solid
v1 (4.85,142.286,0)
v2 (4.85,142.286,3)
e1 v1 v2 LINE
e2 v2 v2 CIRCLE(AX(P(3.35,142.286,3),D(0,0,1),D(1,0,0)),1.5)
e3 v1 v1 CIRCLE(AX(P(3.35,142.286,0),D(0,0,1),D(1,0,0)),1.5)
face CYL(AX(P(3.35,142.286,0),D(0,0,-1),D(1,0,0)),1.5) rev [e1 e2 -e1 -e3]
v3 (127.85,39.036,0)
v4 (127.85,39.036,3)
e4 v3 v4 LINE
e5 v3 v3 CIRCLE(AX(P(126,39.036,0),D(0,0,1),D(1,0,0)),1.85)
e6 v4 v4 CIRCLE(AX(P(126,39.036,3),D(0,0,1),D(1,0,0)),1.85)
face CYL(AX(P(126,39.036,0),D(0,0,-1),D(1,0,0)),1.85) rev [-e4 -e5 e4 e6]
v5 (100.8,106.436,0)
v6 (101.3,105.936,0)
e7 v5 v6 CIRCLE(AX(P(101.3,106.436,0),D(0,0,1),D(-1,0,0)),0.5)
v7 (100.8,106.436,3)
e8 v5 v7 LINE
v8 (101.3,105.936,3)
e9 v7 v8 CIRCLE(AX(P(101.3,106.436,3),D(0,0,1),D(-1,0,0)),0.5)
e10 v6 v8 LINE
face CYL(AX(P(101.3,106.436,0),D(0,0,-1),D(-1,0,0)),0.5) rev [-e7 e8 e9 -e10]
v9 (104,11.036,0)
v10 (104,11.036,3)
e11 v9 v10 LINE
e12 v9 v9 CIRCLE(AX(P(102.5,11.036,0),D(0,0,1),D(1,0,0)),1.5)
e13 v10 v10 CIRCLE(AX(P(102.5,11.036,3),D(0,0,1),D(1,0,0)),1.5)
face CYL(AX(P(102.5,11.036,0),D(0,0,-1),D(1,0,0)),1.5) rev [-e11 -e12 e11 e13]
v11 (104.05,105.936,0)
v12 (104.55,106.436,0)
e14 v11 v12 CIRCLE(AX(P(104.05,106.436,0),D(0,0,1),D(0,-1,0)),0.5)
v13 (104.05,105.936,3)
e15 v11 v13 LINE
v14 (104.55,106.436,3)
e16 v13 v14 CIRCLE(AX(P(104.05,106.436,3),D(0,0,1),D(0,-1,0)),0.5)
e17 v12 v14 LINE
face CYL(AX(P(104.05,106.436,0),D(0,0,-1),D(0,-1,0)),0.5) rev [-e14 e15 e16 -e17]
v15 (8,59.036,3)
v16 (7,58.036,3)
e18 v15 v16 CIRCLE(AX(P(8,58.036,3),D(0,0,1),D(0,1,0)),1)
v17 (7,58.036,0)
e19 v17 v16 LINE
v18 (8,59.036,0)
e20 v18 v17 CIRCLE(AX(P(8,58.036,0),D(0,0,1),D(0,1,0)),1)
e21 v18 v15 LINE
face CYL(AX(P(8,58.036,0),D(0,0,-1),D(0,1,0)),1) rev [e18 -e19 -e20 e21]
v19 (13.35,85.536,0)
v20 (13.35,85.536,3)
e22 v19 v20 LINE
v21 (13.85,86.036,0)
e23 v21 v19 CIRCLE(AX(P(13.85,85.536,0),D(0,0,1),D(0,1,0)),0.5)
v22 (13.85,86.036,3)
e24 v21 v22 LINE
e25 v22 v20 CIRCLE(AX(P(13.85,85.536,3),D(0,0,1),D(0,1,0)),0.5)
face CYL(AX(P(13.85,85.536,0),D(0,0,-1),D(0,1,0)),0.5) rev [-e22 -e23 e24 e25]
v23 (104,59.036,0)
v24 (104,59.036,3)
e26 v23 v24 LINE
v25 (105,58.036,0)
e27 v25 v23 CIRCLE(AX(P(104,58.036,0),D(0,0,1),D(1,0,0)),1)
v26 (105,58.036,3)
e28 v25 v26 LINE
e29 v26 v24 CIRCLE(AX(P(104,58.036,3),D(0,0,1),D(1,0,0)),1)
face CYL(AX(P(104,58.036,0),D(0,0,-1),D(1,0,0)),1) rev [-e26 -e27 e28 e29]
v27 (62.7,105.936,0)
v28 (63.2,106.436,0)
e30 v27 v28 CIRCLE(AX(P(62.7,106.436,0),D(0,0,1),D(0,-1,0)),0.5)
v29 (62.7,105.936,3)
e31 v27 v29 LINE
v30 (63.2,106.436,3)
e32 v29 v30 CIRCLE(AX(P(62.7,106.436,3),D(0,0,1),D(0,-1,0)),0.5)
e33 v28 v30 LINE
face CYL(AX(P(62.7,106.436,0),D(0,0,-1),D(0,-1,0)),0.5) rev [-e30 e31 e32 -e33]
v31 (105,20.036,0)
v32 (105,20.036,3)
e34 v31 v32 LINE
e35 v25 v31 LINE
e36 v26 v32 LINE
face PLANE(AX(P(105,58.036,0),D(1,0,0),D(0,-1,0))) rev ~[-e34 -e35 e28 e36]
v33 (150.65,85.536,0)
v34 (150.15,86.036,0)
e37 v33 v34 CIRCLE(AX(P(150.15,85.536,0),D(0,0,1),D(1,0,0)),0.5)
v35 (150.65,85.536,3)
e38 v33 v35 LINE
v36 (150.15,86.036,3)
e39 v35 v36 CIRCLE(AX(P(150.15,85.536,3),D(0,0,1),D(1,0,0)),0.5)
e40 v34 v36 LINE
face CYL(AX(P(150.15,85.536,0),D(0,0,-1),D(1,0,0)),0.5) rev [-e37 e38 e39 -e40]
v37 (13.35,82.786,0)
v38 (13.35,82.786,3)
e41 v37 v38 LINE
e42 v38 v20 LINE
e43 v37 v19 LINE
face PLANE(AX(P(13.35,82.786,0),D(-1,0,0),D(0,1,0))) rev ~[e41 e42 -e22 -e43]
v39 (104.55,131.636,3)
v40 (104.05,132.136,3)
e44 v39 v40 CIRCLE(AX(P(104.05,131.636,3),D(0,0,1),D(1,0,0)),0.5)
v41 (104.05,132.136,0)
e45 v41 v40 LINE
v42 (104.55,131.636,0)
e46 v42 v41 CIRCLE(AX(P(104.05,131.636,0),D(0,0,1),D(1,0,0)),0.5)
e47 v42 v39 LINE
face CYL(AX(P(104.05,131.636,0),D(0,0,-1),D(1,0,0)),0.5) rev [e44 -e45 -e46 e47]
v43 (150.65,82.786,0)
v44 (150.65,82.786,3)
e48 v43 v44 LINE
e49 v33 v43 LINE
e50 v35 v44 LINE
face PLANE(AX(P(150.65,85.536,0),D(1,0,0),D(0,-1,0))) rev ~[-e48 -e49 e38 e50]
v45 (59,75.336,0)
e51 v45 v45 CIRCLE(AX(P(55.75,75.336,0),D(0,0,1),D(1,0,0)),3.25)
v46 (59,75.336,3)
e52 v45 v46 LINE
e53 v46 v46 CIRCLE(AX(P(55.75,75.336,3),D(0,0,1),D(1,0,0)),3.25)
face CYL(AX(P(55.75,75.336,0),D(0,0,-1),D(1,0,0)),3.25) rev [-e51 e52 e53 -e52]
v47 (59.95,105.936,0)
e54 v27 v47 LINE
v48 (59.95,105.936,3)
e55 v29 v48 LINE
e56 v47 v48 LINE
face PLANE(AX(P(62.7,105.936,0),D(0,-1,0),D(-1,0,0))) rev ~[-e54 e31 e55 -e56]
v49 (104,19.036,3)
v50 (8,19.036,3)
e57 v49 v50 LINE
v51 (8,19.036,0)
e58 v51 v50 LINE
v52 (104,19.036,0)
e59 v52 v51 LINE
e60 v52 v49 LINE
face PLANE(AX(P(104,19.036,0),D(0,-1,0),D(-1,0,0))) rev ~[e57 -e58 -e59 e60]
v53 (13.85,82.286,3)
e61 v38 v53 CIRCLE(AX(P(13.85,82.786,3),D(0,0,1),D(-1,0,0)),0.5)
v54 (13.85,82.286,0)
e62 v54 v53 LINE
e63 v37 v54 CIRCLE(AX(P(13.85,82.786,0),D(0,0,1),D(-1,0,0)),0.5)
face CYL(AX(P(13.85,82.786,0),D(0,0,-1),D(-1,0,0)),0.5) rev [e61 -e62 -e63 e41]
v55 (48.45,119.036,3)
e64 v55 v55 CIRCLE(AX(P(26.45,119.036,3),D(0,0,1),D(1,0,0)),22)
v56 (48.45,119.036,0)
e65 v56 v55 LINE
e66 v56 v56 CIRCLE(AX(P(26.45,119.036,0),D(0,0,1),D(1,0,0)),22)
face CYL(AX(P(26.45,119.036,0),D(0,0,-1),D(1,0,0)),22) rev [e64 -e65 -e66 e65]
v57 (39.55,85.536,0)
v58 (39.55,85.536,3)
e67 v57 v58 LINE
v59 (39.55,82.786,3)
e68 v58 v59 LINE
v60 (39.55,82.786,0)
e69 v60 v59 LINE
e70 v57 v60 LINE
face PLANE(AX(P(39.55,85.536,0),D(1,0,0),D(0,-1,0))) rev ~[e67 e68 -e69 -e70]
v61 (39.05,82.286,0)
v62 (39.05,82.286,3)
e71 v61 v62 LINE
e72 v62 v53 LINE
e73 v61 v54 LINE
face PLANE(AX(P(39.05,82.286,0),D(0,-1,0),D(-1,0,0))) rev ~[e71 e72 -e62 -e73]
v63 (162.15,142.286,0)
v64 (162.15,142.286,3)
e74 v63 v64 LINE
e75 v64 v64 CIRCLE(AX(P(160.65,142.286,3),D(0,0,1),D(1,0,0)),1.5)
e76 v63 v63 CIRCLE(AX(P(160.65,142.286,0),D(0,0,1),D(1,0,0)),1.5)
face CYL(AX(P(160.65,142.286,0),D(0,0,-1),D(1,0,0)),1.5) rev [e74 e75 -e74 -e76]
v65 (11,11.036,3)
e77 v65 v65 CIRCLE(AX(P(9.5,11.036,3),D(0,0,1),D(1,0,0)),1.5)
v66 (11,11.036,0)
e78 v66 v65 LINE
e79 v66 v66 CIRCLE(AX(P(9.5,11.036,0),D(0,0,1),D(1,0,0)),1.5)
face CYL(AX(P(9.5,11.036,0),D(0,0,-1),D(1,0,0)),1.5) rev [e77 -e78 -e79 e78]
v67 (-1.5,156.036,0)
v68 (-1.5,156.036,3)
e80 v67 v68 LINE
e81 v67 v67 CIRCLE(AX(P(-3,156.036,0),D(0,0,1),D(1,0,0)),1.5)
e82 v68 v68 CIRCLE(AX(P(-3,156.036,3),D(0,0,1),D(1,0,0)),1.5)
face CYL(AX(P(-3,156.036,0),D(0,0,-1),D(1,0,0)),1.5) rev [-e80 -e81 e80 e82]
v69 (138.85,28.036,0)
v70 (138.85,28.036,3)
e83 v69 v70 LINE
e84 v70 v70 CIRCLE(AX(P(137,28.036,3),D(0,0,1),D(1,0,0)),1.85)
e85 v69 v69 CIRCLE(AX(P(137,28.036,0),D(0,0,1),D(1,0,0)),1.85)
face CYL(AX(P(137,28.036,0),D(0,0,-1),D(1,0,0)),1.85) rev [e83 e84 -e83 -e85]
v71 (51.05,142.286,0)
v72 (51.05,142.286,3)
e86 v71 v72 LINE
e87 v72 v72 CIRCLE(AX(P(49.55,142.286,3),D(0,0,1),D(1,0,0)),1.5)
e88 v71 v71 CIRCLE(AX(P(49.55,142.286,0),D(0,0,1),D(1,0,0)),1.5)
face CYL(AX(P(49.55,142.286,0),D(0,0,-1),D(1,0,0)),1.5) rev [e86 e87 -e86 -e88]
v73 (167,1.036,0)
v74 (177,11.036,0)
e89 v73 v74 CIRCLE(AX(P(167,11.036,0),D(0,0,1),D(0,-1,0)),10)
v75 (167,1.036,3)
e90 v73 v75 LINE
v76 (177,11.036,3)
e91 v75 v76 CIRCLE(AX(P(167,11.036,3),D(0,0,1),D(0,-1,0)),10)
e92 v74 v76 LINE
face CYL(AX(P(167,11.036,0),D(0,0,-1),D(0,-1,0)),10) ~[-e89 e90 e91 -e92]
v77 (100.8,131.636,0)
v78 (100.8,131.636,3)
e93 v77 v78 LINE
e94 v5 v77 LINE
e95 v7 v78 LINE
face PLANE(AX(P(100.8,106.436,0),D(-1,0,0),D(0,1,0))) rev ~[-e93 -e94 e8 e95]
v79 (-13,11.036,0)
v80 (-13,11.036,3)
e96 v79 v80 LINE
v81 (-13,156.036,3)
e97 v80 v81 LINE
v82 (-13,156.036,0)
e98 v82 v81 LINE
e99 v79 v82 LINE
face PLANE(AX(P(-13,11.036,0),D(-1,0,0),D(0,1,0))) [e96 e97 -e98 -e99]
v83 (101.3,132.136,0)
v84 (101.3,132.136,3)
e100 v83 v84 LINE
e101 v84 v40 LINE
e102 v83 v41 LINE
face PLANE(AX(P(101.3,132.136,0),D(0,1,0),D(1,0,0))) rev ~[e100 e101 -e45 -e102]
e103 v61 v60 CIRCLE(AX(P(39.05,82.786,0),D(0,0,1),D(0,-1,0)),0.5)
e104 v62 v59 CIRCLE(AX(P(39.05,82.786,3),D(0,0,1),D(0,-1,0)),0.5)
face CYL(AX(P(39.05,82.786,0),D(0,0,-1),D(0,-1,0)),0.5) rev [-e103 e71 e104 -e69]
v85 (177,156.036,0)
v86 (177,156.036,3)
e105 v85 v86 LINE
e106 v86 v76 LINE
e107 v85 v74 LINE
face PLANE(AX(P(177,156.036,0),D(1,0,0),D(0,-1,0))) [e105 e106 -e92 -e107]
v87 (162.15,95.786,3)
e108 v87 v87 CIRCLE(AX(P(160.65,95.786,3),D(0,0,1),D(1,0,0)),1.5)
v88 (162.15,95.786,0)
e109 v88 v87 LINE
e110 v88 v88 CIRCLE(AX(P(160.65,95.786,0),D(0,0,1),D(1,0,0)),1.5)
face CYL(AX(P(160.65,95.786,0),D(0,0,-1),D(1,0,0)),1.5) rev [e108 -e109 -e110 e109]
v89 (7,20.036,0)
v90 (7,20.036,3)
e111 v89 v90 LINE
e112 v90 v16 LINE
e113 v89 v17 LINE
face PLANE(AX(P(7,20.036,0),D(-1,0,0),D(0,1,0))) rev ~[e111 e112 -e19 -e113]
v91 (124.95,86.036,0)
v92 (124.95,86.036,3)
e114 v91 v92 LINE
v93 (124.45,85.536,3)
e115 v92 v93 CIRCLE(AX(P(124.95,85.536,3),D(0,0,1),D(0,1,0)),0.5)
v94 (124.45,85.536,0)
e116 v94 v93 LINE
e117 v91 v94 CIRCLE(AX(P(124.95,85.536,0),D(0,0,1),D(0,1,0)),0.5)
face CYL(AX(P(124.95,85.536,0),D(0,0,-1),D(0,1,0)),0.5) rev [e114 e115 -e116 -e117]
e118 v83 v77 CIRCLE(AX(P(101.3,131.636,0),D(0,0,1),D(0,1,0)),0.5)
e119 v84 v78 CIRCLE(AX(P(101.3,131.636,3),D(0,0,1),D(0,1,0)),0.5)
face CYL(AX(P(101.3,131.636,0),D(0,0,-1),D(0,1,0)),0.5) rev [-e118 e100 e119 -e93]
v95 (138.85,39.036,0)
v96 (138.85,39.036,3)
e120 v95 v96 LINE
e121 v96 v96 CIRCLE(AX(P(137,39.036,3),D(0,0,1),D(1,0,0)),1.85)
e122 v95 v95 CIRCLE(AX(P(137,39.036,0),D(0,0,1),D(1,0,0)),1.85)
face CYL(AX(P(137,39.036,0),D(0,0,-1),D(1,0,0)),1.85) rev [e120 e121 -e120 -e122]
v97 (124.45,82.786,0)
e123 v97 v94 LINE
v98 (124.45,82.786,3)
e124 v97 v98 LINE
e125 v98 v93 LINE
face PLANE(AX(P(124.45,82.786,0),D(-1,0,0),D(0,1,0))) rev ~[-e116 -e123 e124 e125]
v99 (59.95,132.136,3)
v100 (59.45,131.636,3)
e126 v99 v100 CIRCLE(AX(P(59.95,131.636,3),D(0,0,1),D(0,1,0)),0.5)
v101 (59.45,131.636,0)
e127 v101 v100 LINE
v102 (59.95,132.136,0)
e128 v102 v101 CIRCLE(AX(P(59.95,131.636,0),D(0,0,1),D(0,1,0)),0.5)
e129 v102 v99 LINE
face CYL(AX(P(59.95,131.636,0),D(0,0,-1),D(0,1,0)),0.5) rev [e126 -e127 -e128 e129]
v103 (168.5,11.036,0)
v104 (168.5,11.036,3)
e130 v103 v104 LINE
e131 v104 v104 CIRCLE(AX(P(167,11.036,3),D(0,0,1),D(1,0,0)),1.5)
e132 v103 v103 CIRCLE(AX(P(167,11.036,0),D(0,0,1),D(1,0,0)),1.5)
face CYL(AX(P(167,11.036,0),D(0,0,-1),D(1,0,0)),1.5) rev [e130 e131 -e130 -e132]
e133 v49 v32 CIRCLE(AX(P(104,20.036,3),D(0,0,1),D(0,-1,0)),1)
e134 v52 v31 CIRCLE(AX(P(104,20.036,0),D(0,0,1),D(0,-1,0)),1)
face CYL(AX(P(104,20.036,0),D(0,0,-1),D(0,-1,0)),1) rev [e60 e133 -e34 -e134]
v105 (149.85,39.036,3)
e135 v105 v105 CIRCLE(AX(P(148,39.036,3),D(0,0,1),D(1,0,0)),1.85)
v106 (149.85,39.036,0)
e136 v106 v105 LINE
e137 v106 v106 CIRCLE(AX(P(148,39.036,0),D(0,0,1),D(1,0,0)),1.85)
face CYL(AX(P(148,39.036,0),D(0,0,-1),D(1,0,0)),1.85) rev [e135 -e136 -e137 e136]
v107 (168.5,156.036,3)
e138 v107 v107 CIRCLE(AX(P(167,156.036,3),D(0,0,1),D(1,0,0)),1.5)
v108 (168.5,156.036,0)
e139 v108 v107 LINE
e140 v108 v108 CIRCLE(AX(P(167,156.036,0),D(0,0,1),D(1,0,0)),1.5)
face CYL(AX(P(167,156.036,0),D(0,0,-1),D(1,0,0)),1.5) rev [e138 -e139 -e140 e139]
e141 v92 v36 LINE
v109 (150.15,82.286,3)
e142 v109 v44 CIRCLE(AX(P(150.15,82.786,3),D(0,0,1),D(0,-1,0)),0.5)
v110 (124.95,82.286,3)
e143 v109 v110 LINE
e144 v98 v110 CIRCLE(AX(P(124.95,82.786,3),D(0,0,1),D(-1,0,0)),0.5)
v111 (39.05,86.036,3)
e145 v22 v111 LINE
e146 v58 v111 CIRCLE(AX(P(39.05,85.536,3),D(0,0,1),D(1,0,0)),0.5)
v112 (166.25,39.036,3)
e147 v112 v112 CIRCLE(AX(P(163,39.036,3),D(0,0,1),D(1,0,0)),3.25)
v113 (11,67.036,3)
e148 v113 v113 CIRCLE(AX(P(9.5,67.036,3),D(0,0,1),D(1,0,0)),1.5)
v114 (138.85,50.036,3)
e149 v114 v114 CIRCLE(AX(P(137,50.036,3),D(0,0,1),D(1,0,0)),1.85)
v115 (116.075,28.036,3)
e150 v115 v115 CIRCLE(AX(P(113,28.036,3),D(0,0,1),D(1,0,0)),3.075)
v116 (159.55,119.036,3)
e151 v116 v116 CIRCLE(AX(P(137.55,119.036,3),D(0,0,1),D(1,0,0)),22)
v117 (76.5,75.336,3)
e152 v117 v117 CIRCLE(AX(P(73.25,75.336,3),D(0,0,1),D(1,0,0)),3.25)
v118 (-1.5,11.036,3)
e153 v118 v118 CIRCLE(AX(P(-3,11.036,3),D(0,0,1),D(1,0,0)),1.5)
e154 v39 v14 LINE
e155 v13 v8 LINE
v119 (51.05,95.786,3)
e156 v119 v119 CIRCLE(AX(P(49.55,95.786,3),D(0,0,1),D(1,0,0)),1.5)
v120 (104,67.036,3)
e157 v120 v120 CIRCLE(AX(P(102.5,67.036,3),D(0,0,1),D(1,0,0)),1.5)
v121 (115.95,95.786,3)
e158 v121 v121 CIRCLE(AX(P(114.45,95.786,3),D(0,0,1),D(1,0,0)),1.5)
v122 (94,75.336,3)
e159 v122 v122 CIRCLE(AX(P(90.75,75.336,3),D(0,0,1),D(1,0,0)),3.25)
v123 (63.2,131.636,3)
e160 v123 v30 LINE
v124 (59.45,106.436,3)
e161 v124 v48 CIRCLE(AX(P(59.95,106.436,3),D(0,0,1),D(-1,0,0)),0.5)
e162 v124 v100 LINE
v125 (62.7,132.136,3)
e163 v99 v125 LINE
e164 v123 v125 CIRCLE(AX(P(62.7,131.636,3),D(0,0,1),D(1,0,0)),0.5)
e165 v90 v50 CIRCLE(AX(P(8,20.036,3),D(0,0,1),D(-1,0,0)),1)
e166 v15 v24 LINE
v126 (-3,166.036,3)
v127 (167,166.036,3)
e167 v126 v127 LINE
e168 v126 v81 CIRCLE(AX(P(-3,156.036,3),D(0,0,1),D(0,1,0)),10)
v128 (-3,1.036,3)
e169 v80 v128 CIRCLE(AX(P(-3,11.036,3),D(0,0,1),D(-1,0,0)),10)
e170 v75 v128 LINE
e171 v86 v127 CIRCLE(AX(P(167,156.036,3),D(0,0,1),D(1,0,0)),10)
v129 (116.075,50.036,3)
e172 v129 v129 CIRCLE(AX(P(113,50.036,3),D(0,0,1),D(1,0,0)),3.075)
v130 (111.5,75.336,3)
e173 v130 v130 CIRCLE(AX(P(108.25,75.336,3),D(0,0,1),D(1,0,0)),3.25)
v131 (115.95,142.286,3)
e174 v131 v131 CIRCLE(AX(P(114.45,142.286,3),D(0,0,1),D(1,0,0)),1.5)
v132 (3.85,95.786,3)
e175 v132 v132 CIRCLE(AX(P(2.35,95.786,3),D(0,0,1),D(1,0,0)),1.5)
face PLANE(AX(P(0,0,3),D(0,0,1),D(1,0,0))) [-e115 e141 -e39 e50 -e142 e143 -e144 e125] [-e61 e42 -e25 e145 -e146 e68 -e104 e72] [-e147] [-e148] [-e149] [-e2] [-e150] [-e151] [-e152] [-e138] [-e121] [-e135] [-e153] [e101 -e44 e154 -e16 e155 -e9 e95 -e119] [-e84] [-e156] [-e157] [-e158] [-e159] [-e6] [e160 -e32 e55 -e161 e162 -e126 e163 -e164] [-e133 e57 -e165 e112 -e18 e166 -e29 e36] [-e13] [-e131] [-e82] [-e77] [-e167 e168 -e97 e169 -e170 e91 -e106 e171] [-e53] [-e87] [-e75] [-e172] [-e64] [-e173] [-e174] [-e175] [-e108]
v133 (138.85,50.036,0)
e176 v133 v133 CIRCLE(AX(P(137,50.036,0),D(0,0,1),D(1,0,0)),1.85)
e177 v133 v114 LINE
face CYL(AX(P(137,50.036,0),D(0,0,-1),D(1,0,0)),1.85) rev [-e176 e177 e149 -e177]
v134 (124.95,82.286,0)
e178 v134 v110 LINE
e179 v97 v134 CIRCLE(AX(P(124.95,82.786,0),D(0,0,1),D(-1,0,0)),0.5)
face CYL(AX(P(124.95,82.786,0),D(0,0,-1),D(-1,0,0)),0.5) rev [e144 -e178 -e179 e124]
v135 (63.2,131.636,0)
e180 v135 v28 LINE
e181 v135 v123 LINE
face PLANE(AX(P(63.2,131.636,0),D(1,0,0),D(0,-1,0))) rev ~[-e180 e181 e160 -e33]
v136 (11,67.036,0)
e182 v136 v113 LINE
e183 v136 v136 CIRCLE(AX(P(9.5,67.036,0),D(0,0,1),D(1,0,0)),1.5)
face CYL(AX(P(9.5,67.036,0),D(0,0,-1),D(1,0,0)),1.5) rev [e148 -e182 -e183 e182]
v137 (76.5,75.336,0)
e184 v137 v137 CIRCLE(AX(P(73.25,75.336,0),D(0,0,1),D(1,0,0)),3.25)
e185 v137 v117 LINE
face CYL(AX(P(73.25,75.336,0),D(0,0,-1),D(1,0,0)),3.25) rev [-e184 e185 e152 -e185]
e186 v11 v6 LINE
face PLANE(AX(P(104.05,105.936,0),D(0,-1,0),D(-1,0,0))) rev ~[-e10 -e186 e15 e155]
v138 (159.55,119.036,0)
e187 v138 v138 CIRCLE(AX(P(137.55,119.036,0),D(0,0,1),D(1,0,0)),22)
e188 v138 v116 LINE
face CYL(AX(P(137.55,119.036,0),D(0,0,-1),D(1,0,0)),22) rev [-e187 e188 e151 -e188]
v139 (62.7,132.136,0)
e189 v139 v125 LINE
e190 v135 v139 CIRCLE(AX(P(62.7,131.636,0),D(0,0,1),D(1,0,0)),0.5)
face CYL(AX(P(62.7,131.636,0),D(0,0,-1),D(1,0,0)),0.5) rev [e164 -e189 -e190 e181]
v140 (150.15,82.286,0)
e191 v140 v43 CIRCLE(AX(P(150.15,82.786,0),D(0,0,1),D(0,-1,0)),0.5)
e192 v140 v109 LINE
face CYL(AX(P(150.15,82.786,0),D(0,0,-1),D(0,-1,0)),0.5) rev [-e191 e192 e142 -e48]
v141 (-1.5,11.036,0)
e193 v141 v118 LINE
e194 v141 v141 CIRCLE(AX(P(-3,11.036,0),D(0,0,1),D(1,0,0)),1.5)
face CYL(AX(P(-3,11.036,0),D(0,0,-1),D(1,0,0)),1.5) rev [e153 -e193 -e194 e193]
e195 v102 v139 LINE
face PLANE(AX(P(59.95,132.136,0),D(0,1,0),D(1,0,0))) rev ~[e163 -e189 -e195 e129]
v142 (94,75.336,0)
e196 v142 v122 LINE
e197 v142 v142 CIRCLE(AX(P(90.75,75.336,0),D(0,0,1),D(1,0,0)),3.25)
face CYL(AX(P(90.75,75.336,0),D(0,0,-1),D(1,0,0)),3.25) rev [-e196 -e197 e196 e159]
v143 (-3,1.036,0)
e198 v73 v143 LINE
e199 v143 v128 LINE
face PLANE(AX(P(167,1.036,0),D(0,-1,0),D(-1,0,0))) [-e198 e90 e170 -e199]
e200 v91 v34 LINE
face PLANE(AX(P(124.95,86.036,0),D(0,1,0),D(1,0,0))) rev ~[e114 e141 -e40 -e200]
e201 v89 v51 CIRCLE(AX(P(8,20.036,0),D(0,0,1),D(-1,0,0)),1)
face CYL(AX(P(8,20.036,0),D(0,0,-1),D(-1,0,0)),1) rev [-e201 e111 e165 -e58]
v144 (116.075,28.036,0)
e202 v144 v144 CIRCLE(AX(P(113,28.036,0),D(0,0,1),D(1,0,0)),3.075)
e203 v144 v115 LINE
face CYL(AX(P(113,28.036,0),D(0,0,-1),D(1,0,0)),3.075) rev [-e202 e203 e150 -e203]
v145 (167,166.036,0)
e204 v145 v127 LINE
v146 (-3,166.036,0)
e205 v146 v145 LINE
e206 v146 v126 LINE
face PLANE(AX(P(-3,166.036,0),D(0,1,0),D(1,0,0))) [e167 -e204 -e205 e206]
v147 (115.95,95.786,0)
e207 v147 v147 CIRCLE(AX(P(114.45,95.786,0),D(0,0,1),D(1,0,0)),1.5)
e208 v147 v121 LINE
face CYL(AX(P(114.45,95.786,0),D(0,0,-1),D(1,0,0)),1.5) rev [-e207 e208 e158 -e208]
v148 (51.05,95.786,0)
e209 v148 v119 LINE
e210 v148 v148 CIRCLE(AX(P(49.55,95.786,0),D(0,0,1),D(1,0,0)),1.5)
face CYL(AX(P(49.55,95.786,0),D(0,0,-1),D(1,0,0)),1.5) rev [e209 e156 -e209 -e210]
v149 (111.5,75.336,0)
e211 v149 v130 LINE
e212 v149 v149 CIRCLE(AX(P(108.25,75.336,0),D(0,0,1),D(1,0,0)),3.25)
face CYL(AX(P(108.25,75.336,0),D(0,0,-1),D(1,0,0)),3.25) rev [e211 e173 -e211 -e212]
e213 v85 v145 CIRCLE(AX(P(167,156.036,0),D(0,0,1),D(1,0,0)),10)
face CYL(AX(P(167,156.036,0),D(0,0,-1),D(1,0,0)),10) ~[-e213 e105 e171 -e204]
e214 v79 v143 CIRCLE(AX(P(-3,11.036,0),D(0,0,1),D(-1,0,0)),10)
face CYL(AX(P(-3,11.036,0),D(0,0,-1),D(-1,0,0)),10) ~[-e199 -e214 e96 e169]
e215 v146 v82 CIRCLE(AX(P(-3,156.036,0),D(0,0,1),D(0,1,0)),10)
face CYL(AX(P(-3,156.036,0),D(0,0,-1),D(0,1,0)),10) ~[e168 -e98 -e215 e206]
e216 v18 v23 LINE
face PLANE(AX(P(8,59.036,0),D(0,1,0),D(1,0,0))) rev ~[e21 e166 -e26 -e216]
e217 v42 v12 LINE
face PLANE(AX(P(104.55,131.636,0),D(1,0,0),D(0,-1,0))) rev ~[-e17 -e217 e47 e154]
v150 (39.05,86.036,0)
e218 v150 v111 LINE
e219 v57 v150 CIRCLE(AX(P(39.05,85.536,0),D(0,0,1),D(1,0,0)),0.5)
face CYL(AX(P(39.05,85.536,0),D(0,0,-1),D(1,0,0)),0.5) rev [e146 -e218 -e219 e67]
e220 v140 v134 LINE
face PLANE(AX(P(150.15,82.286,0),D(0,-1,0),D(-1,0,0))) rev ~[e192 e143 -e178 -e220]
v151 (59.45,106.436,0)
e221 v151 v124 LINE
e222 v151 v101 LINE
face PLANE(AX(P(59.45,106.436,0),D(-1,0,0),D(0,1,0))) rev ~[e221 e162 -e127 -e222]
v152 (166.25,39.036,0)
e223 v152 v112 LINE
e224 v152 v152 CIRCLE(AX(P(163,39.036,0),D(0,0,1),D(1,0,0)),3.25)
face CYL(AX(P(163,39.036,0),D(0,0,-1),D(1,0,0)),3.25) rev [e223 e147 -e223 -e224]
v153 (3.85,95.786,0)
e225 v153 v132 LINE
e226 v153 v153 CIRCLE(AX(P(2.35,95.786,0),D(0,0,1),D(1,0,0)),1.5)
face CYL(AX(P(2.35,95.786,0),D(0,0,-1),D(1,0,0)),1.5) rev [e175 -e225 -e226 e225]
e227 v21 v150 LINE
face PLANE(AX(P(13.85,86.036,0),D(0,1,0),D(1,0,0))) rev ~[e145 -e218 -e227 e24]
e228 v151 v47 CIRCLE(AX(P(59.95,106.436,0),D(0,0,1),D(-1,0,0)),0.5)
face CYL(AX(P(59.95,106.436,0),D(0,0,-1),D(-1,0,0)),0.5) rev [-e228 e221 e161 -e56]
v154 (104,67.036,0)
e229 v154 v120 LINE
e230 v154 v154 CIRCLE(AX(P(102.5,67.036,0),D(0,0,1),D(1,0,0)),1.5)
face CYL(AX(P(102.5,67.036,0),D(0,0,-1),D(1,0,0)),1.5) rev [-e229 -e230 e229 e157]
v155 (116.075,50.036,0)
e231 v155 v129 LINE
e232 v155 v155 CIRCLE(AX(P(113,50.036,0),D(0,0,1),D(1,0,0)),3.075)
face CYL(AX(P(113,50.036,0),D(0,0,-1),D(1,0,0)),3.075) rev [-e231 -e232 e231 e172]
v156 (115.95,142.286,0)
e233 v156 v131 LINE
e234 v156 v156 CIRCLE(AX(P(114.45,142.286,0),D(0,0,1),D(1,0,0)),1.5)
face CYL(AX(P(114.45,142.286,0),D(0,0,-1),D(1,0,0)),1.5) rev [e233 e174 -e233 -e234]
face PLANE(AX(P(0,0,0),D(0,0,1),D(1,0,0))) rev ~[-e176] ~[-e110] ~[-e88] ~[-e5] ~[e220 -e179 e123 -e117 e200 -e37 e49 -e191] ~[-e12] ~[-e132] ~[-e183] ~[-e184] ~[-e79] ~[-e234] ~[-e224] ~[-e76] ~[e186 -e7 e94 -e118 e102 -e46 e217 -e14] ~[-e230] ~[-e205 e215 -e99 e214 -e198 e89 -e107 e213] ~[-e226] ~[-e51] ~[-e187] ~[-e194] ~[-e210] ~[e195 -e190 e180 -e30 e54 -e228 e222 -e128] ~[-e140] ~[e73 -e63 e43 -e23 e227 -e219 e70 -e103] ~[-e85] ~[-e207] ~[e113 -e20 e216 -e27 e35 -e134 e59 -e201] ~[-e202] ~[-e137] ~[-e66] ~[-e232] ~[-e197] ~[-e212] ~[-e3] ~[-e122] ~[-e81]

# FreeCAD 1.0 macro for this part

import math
import FreeCAD as App
import Part
import Sketcher
Q = App.Units.Quantity

doc = App.newDocument("Part")
params = doc.addObject("Spreadsheet::Sheet", "Params")
for row, (alias, value) in enumerate([
    ("sketch1_diameter", "3 mm"),
    ("sketch1_diameter2", "44 mm"),
    ("sketch1_radius", "10 mm"),
    ("sketch1_radius2", "1 mm"),
    ("sketch1_diameter3", "6.5 mm"),
    ("pad1_length", "3 mm"),
    ("sketch2_diameter", "3 mm"),
    ("pocket1_length", "3 mm"),
], start=1):
    params.set(f"A{row}", alias)
    params.set(f"B{row}", "=" + value)
    params.setAlias(f"B{row}", alias)

body = doc.addObject("PartDesign::Body", "Body")

sketch1 = body.newObject("Sketcher::SketchObject", "Sketch")
sketch1.AttachmentSupport = (doc.getObject("XY_Plane"), [""])
sketch1.MapMode = "FlatFace"
sketch1.addGeometry([
    Part.LineSegment(App.Vector(167, 166.036, 0), App.Vector(-3, 166.036, 0)),
    Part.ArcOfCircle(Part.Circle(App.Vector(-3, 156.036, 0), App.Vector(0, 0, 1), 10), math.radians(90), math.radians(180)),
    Part.LineSegment(App.Vector(-13, 156.036, 0), App.Vector(-13, 11.036, 0)),
    Part.ArcOfCircle(Part.Circle(App.Vector(-3, 11.036, 0), App.Vector(0, 0, 1), 10), math.radians(180), math.radians(270)),
    Part.LineSegment(App.Vector(-3, 1.036, 0), App.Vector(167, 1.036, 0)),
    Part.ArcOfCircle(Part.Circle(App.Vector(167, 11.036, 0), App.Vector(0, 0, 1), 10), math.radians(-90), math.radians(0)),
    Part.LineSegment(App.Vector(177, 11.036, 0), App.Vector(177, 156.036, 0)),
    Part.ArcOfCircle(Part.Circle(App.Vector(167, 156.036, 0), App.Vector(0, 0, 1), 10), math.radians(0), math.radians(90)),
    Part.Circle(App.Vector(-3, 11.036, 0), App.Vector(0, 0, 1), 1.5),
    Part.ArcOfCircle(Part.Circle(App.Vector(8, 58.036, 0), App.Vector(0, 0, 1), 1), math.radians(90), math.radians(180)),
    Part.LineSegment(App.Vector(8, 59.036, 0), App.Vector(104, 59.036, 0)),
    Part.ArcOfCircle(Part.Circle(App.Vector(104, 58.036, 0), App.Vector(0, 0, 1), 1), math.radians(0), math.radians(90)),
    Part.LineSegment(App.Vector(105, 58.036, 0), App.Vector(105, 20.036, 0)),
    Part.ArcOfCircle(Part.Circle(App.Vector(104, 20.036, 0), App.Vector(0, 0, 1), 1), math.radians(-90), math.radians(0)),
    Part.LineSegment(App.Vector(104, 19.036, 0), App.Vector(8, 19.036, 0)),
    Part.ArcOfCircle(Part.Circle(App.Vector(8, 20.036, 0), App.Vector(0, 0, 1), 1), math.radians(180), math.radians(270)),
    Part.LineSegment(App.Vector(7, 20.036, 0), App.Vector(7, 58.036, 0)),
    Part.Circle(App.Vector(55.75, 75.336, 0), App.Vector(0, 0, 1), 3.25),
    Part.Circle(App.Vector(73.25, 75.336, 0), App.Vector(0, 0, 1), 3.25),
    Part.Circle(App.Vector(113, 28.036, 0), App.Vector(0, 0, 1), 3.075),
    Part.Circle(App.Vector(126, 39.036, 0), App.Vector(0, 0, 1), 1.85),
    Part.Circle(App.Vector(167, 11.036, 0), App.Vector(0, 0, 1), 1.5),
    Part.Circle(App.Vector(137, 28.036, 0), App.Vector(0, 0, 1), 1.85),
    Part.Circle(App.Vector(137, 39.036, 0), App.Vector(0, 0, 1), 1.85),
    Part.Circle(App.Vector(148, 39.036, 0), App.Vector(0, 0, 1), 1.85),
    Part.Circle(App.Vector(163, 39.036, 0), App.Vector(0, 0, 1), 3.25),
    Part.Circle(App.Vector(113, 50.036, 0), App.Vector(0, 0, 1), 3.075),
    Part.Circle(App.Vector(90.75, 75.336, 0), App.Vector(0, 0, 1), 3.25),
    Part.Circle(App.Vector(108.25, 75.336, 0), App.Vector(0, 0, 1), 3.25),
    Part.Circle(App.Vector(137, 50.036, 0), App.Vector(0, 0, 1), 1.85),
    Part.Circle(App.Vector(2.35, 95.786, 0), App.Vector(0, 0, 1), 1.5),
    Part.ArcOfCircle(Part.Circle(App.Vector(13.85, 85.536, 0), App.Vector(0, 0, 1), 0.5), math.radians(90), math.radians(180)),
    Part.LineSegment(App.Vector(13.85, 86.036, 0), App.Vector(39.05, 86.036, 0)),
    Part.ArcOfCircle(Part.Circle(App.Vector(39.05, 85.536, 0), App.Vector(0, 0, 1), 0.5), math.radians(0), math.radians(90)),
    Part.LineSegment(App.Vector(39.55, 85.536, 0), App.Vector(39.55, 82.786, 0)),
    Part.ArcOfCircle(Part.Circle(App.Vector(39.05, 82.786, 0), App.Vector(0, 0, 1), 0.5), math.radians(-90), math.radians(0)),
    Part.LineSegment(App.Vector(39.05, 82.286, 0), App.Vector(13.85, 82.286, 0)),
    Part.ArcOfCircle(Part.Circle(App.Vector(13.85, 82.786, 0), App.Vector(0, 0, 1), 0.5), math.radians(180), math.radians(270)),
    Part.LineSegment(App.Vector(13.35, 82.786, 0), App.Vector(13.35, 85.536, 0)),
    Part.Circle(App.Vector(26.45, 119.036, 0), App.Vector(0, 0, 1), 22),
    Part.Circle(App.Vector(49.55, 95.786, 0), App.Vector(0, 0, 1), 1.5),
    Part.ArcOfCircle(Part.Circle(App.Vector(59.95, 131.636, 0), App.Vector(0, 0, 1), 0.5), math.radians(90), math.radians(180)),
    Part.LineSegment(App.Vector(59.95, 132.136, 0), App.Vector(62.7, 132.136, 0)),
    Part.ArcOfCircle(Part.Circle(App.Vector(62.7, 131.636, 0), App.Vector(0, 0, 1), 0.5), math.radians(0), math.radians(90)),
    Part.LineSegment(App.Vector(63.2, 131.636, 0), App.Vector(63.2, 106.436, 0)),
    Part.ArcOfCircle(Part.Circle(App.Vector(62.7, 106.436, 0), App.Vector(0, 0, 1), 0.5), math.radians(-90), math.radians(0)),
    Part.LineSegment(App.Vector(62.7, 105.936, 0), App.Vector(59.95, 105.936, 0)),
    Part.ArcOfCircle(Part.Circle(App.Vector(59.95, 106.436, 0), App.Vector(0, 0, 1), 0.5), math.radians(180), math.radians(270)),
    Part.LineSegment(App.Vector(59.45, 106.436, 0), App.Vector(59.45, 131.636, 0)),
    Part.Circle(App.Vector(3.35, 142.286, 0), App.Vector(0, 0, 1), 1.5),
    Part.Circle(App.Vector(-3, 156.036, 0), App.Vector(0, 0, 1), 1.5),
    Part.Circle(App.Vector(49.55, 142.286, 0), App.Vector(0, 0, 1), 1.5),
    Part.Circle(App.Vector(114.45, 95.786, 0), App.Vector(0, 0, 1), 1.5),
    Part.ArcOfCircle(Part.Circle(App.Vector(101.3, 131.636, 0), App.Vector(0, 0, 1), 0.5), math.radians(90), math.radians(180)),
    Part.LineSegment(App.Vector(101.3, 132.136, 0), App.Vector(104.05, 132.136, 0)),
    Part.ArcOfCircle(Part.Circle(App.Vector(104.05, 131.636, 0), App.Vector(0, 0, 1), 0.5), math.radians(0), math.radians(90)),
    Part.LineSegment(App.Vector(104.55, 131.636, 0), App.Vector(104.55, 106.436, 0)),
    Part.ArcOfCircle(Part.Circle(App.Vector(104.05, 106.436, 0), App.Vector(0, 0, 1), 0.5), math.radians(-90), math.radians(0)),
    Part.LineSegment(App.Vector(104.05, 105.936, 0), App.Vector(101.3, 105.936, 0)),
    Part.ArcOfCircle(Part.Circle(App.Vector(101.3, 106.436, 0), App.Vector(0, 0, 1), 0.5), math.radians(180), math.radians(270)),
    Part.LineSegment(App.Vector(100.8, 106.436, 0), App.Vector(100.8, 131.636, 0)),
    Part.ArcOfCircle(Part.Circle(App.Vector(124.95, 85.536, 0), App.Vector(0, 0, 1), 0.5), math.radians(90), math.radians(180)),
    Part.LineSegment(App.Vector(124.95, 86.036, 0), App.Vector(150.15, 86.036, 0)),
    Part.ArcOfCircle(Part.Circle(App.Vector(150.15, 85.536, 0), App.Vector(0, 0, 1), 0.5), math.radians(0), math.radians(90)),
    Part.LineSegment(App.Vector(150.65, 85.536, 0), App.Vector(150.65, 82.786, 0)),
    Part.ArcOfCircle(Part.Circle(App.Vector(150.15, 82.786, 0), App.Vector(0, 0, 1), 0.5), math.radians(-90), math.radians(0)),
    Part.LineSegment(App.Vector(150.15, 82.286, 0), App.Vector(124.95, 82.286, 0)),
    Part.ArcOfCircle(Part.Circle(App.Vector(124.95, 82.786, 0), App.Vector(0, 0, 1), 0.5), math.radians(180), math.radians(270)),
    Part.LineSegment(App.Vector(124.45, 82.786, 0), App.Vector(124.45, 85.536, 0)),
    Part.Circle(App.Vector(160.65, 95.786, 0), App.Vector(0, 0, 1), 1.5),
    Part.Circle(App.Vector(137.55, 119.036, 0), App.Vector(0, 0, 1), 22),
    Part.Circle(App.Vector(114.45, 142.286, 0), App.Vector(0, 0, 1), 1.5),
    Part.Circle(App.Vector(160.65, 142.286, 0), App.Vector(0, 0, 1), 1.5),
    Part.Circle(App.Vector(167, 156.036, 0), App.Vector(0, 0, 1), 1.5),
], False)
sketch1.addConstraint([
    Sketcher.Constraint("Tangent", 0, 2, 1, 1),
    Sketcher.Constraint("Tangent", 1, 2, 2, 1),
    Sketcher.Constraint("Tangent", 2, 2, 3, 1),
    Sketcher.Constraint("Tangent", 3, 2, 4, 1),
    Sketcher.Constraint("Tangent", 4, 2, 5, 1),
    Sketcher.Constraint("Tangent", 5, 2, 6, 1),
    Sketcher.Constraint("Tangent", 6, 2, 7, 1),
    Sketcher.Constraint("Tangent", 7, 2, 0, 1),
    Sketcher.Constraint("Tangent", 9, 1, 10, 1),
    Sketcher.Constraint("Tangent", 10, 2, 11, 2),
    Sketcher.Constraint("Tangent", 11, 1, 12, 1),
    Sketcher.Constraint("Tangent", 12, 2, 13, 2),
    Sketcher.Constraint("Tangent", 13, 1, 14, 1),
    Sketcher.Constraint("Tangent", 14, 2, 15, 2),
    Sketcher.Constraint("Tangent", 15, 1, 16, 1),
    Sketcher.Constraint("Tangent", 16, 2, 9, 2),
    Sketcher.Constraint("Tangent", 31, 1, 32, 1),
    Sketcher.Constraint("Tangent", 32, 2, 33, 2),
    Sketcher.Constraint("Tangent", 33, 1, 34, 1),
    Sketcher.Constraint("Tangent", 34, 2, 35, 2),
    Sketcher.Constraint("Tangent", 35, 1, 36, 1),
    Sketcher.Constraint("Tangent", 36, 2, 37, 2),
    Sketcher.Constraint("Tangent", 37, 1, 38, 1),
    Sketcher.Constraint("Tangent", 38, 2, 31, 2),
    Sketcher.Constraint("Tangent", 41, 1, 42, 1),
    Sketcher.Constraint("Tangent", 42, 2, 43, 2),
    Sketcher.Constraint("Tangent", 43, 1, 44, 1),
    Sketcher.Constraint("Tangent", 44, 2, 45, 2),
    Sketcher.Constraint("Tangent", 45, 1, 46, 1),
    Sketcher.Constraint("Tangent", 46, 2, 47, 2),
    Sketcher.Constraint("Tangent", 47, 1, 48, 1),
    Sketcher.Constraint("Tangent", 48, 2, 41, 2),
    Sketcher.Constraint("Tangent", 53, 1, 54, 1),
    Sketcher.Constraint("Tangent", 54, 2, 55, 2),
    Sketcher.Constraint("Tangent", 55, 1, 56, 1),
    Sketcher.Constraint("Tangent", 56, 2, 57, 2),
    Sketcher.Constraint("Tangent", 57, 1, 58, 1),
    Sketcher.Constraint("Tangent", 58, 2, 59, 2),
    Sketcher.Constraint("Tangent", 59, 1, 60, 1),
    Sketcher.Constraint("Tangent", 60, 2, 53, 2),
    Sketcher.Constraint("Tangent", 61, 1, 62, 1),
    Sketcher.Constraint("Tangent", 62, 2, 63, 2),
    Sketcher.Constraint("Tangent", 63, 1, 64, 1),
    Sketcher.Constraint("Tangent", 64, 2, 65, 2),
    Sketcher.Constraint("Tangent", 65, 1, 66, 1),
    Sketcher.Constraint("Tangent", 66, 2, 67, 2),
    Sketcher.Constraint("Tangent", 67, 1, 68, 1),
    Sketcher.Constraint("Tangent", 68, 2, 61, 2),
    Sketcher.Constraint("Horizontal", 0),
    Sketcher.Constraint("Vertical", 2),
    Sketcher.Constraint("Horizontal", 4),
    Sketcher.Constraint("Vertical", 6),
    Sketcher.Constraint("Horizontal", 10),
    Sketcher.Constraint("Vertical", 12),
    Sketcher.Constraint("Horizontal", 14),
    Sketcher.Constraint("Vertical", 16),
    Sketcher.Constraint("Horizontal", 32),
    Sketcher.Constraint("Vertical", 34),
    Sketcher.Constraint("Horizontal", 36),
    Sketcher.Constraint("Vertical", 38),
    Sketcher.Constraint("Horizontal", 42),
    Sketcher.Constraint("Vertical", 44),
    Sketcher.Constraint("Horizontal", 46),
    Sketcher.Constraint("Vertical", 48),
    Sketcher.Constraint("Horizontal", 54),
    Sketcher.Constraint("Vertical", 56),
    Sketcher.Constraint("Horizontal", 58),
    Sketcher.Constraint("Vertical", 60),
    Sketcher.Constraint("Horizontal", 62),
    Sketcher.Constraint("Vertical", 64),
    Sketcher.Constraint("Horizontal", 66),
    Sketcher.Constraint("Vertical", 68),
    Sketcher.Constraint("Coincident", 8, 3, 3, 3),
    Sketcher.Constraint("Coincident", 21, 3, 5, 3),
    Sketcher.Constraint("Coincident", 50, 3, 1, 3),
    Sketcher.Constraint("Coincident", 73, 3, 7, 3),
    Sketcher.Constraint("Equal", 1, 3),
    Sketcher.Constraint("Equal", 3, 5),
    Sketcher.Constraint("Equal", 5, 7),
    Sketcher.Constraint("Equal", 9, 11),
    Sketcher.Constraint("Equal", 11, 13),
    Sketcher.Constraint("Equal", 13, 15),
    Sketcher.Constraint("Equal", 17, 18),
    Sketcher.Constraint("Equal", 8, 21),
    Sketcher.Constraint("Equal", 20, 22),
    Sketcher.Constraint("Equal", 22, 23),
    Sketcher.Constraint("Equal", 23, 24),
    Sketcher.Constraint("Equal", 18, 25),
    Sketcher.Constraint("Equal", 19, 26),
    Sketcher.Constraint("Equal", 25, 27),
    Sketcher.Constraint("Equal", 27, 28),
    Sketcher.Constraint("Equal", 24, 29),
    Sketcher.Constraint("Equal", 21, 30),
    Sketcher.Constraint("Equal", 31, 33),
    Sketcher.Constraint("Equal", 33, 35),
    Sketcher.Constraint("Equal", 35, 37),
    Sketcher.Constraint("Equal", 30, 40),
    Sketcher.Constraint("Equal", 37, 41),
    Sketcher.Constraint("Equal", 41, 43),
    Sketcher.Constraint("Equal", 43, 45),
    Sketcher.Constraint("Equal", 45, 47),
    Sketcher.Constraint("Equal", 40, 49),
    Sketcher.Constraint("Equal", 49, 50),
    Sketcher.Constraint("Equal", 50, 51),
    Sketcher.Constraint("Equal", 51, 52),
    Sketcher.Constraint("Equal", 47, 53),
    Sketcher.Constraint("Equal", 53, 55),
    Sketcher.Constraint("Equal", 55, 57),
    Sketcher.Constraint("Equal", 57, 59),
    Sketcher.Constraint("Equal", 59, 61),
    Sketcher.Constraint("Equal", 61, 63),
    Sketcher.Constraint("Equal", 63, 65),
    Sketcher.Constraint("Equal", 65, 67),
    Sketcher.Constraint("Equal", 52, 69),
    Sketcher.Constraint("Equal", 39, 70),
    Sketcher.Constraint("Equal", 69, 71),
    Sketcher.Constraint("Equal", 71, 72),
    Sketcher.Constraint("Equal", 72, 73),
    Sketcher.Constraint("Horizontal", 17, 3, 18, 3),
    Sketcher.Constraint("Horizontal", 19, 3, 22, 3),
    Sketcher.Constraint("Horizontal", 20, 3, 23, 3),
    Sketcher.Constraint("Horizontal", 23, 3, 24, 3),
    Sketcher.Constraint("Horizontal", 24, 3, 25, 3),
    Sketcher.Constraint("Horizontal", 18, 3, 27, 3),
    Sketcher.Constraint("Horizontal", 27, 3, 28, 3),
    Sketcher.Constraint("Horizontal", 26, 3, 29, 3),
    Sketcher.Constraint("Horizontal", 30, 3, 40, 3),
    Sketcher.Constraint("Horizontal", 49, 3, 51, 3),
    Sketcher.Constraint("Horizontal", 40, 3, 52, 3),
    Sketcher.Constraint("Horizontal", 43, 3, 53, 3),
    Sketcher.Constraint("Horizontal", 47, 3, 57, 3),
    Sketcher.Constraint("Horizontal", 33, 3, 61, 3),
    Sketcher.Constraint("Horizontal", 37, 3, 65, 3),
    Sketcher.Constraint("Horizontal", 52, 3, 69, 3),
    Sketcher.Constraint("Horizontal", 39, 3, 70, 3),
    Sketcher.Constraint("Horizontal", 51, 3, 71, 3),
    Sketcher.Constraint("Horizontal", 71, 3, 72, 3),
    Sketcher.Constraint("Vertical", 22, 3, 23, 3),
    Sketcher.Constraint("Vertical", 19, 3, 26, 3),
    Sketcher.Constraint("Vertical", 23, 3, 29, 3),
    Sketcher.Constraint("Vertical", 40, 3, 51, 3),
    Sketcher.Constraint("Vertical", 52, 3, 71, 3),
    Sketcher.Constraint("Vertical", 69, 3, 72, 3),
    Sketcher.Constraint("Equal", 46, 54),
    Sketcher.Constraint("Equal", 36, 62),
    Sketcher.Constraint("Equal", 58, 34),
    Sketcher.Constraint("Equal", 66, 44),
    Sketcher.Constraint("Diameter", 8, Q("3 mm")),
    Sketcher.Constraint("Diameter", 39, Q("44 mm")),
    Sketcher.Constraint("Radius", 1, Q("10 mm")),
    Sketcher.Constraint("Radius", 9, Q("1 mm")),
    Sketcher.Constraint("Diameter", 17, Q("6.5 mm")),
    Sketcher.Constraint("Diameter", 20, Q("3.7 mm")),
    Sketcher.Constraint("Radius", 31, Q("0.5 mm")),
    Sketcher.Constraint("Diameter", 19, Q("6.15 mm")),
    Sketcher.Constraint("DistanceX", 1, 3, -1, 1, Q("3 mm")),
    Sketcher.Constraint("DistanceX", -1, 1, 9, 3, Q("8 mm")),
    Sketcher.Constraint("DistanceX", 0, 2, 0, 1, Q("170 mm")),
    Sketcher.Constraint("DistanceX", 10, 1, 10, 2, Q("96 mm")),
    Sketcher.Constraint("DistanceY", 2, 2, 2, 1, Q("145 mm")),
    Sketcher.Constraint("DistanceY", 12, 2, 12, 1, Q("38 mm")),
    Sketcher.Constraint("DistanceX", 32, 1, 32, 2, Q("25.2 mm")),
    Sketcher.Constraint("DistanceX", -1, 1, 19, 3, Q("113 mm")),
    Sketcher.Constraint("DistanceX", -1, 1, 20, 3, Q("126 mm")),
    Sketcher.Constraint("DistanceX", -1, 1, 22, 3, Q("137 mm")),
    Sketcher.Constraint("DistanceX", -1, 1, 24, 3, Q("148 mm")),
    Sketcher.Constraint("DistanceX", -1, 1, 25, 3, Q("163 mm")),
    Sketcher.Constraint("DistanceX", 42, 1, 42, 2, Q("2.75 mm")),
    Sketcher.Constraint("DistanceX", -1, 1, 43, 3, Q("62.7 mm")),
    Sketcher.Constraint("DistanceX", -1, 1, 53, 3, Q("101.3 mm")),
    Sketcher.Constraint("DistanceX", -1, 1, 17, 3, Q("55.75 mm")),
    Sketcher.Constraint("DistanceX", -1, 1, 18, 3, Q("73.25 mm")),
    Sketcher.Constraint("DistanceX", -1, 1, 27, 3, Q("90.75 mm")),
    Sketcher.Constraint("DistanceX", -1, 1, 28, 3, Q("108.25 mm")),
    Sketcher.Constraint("DistanceX", -1, 1, 30, 3, Q("2.35 mm")),
    Sketcher.Constraint("DistanceX", -1, 1, 31, 3, Q("13.85 mm")),
    Sketcher.Constraint("DistanceX", -1, 1, 39, 3, Q("26.45 mm")),
    Sketcher.Constraint("DistanceX", -1, 1, 40, 3, Q("49.55 mm")),
    Sketcher.Constraint("DistanceX", -1, 1, 49, 3, Q("3.35 mm")),
    Sketcher.Constraint("DistanceX", -1, 1, 52, 3, Q("114.45 mm")),
    Sketcher.Constraint("DistanceX", -1, 1, 61, 3, Q("124.95 mm")),
    Sketcher.Constraint("DistanceX", -1, 1, 69, 3, Q("160.65 mm")),
    Sketcher.Constraint("DistanceX", -1, 1, 70, 3, Q("137.55 mm")),
    Sketcher.Constraint("DistanceY", -1, 1, 1, 3, Q("156.036 mm")),
    Sketcher.Constraint("DistanceY", -1, 1, 9, 3, Q("58.036 mm")),
    Sketcher.Constraint("DistanceY", -1, 1, 17, 3, Q("75.336 mm")),
    Sketcher.Constraint("DistanceY", -1, 1, 19, 3, Q("28.036 mm")),
    Sketcher.Constraint("DistanceY", -1, 1, 20, 3, Q("39.036 mm")),
    Sketcher.Constraint("DistanceY", -1, 1, 26, 3, Q("50.036 mm")),
    Sketcher.Constraint("DistanceY", -1, 1, 30, 3, Q("95.786 mm")),
    Sketcher.Constraint("DistanceY", -1, 1, 31, 3, Q("85.536 mm")),
    Sketcher.Constraint("DistanceY", -1, 1, 39, 3, Q("119.036 mm")),
    Sketcher.Constraint("DistanceY", -1, 1, 41, 3, Q("131.636 mm")),
    Sketcher.Constraint("DistanceY", -1, 1, 49, 3, Q("142.286 mm")),
])
sketch1.setExpression("Constraints[147]", "Params.sketch1_diameter")
sketch1.setExpression("Constraints[148]", "Params.sketch1_diameter2")
sketch1.setExpression("Constraints[149]", "Params.sketch1_radius")
sketch1.setExpression("Constraints[150]", "Params.sketch1_radius2")
sketch1.setExpression("Constraints[151]", "Params.sketch1_diameter3")
pad1 = body.newObject("PartDesign::Pad", "Pad")
pad1.Profile = sketch1
pad1.setExpression("Length", "Params.pad1_length")

sketch2 = body.newObject("Sketcher::SketchObject", "Sketch001")
sketch2.AttachmentSupport = (doc.getObject("XY_Plane"), [""])
sketch2.MapMode = "FlatFace"
sketch2.addGeometry([
    Part.Circle(App.Vector(9.5, 67.036, 0), App.Vector(0, 0, 1), 1.5),
    Part.Circle(App.Vector(102.5, 67.036, 0), App.Vector(0, 0, 1), 1.5),
    Part.Circle(App.Vector(9.5, 11.036, 0), App.Vector(0, 0, 1), 1.5),
    Part.Circle(App.Vector(102.5, 11.036, 0), App.Vector(0, 0, 1), 1.5),
], False)
sketch2.addConstraint([
    Sketcher.Constraint("Equal", 0, 1),
    Sketcher.Constraint("Equal", 1, 2),
    Sketcher.Constraint("Equal", 2, 3),
    Sketcher.Constraint("Horizontal", 0, 3, 1, 3),
    Sketcher.Constraint("Horizontal", 2, 3, 3, 3),
    Sketcher.Constraint("Vertical", 0, 3, 2, 3),
    Sketcher.Constraint("Vertical", 1, 3, 3, 3),
    Sketcher.Constraint("Diameter", 0, Q("3 mm")),
    Sketcher.Constraint("DistanceX", 0, 3, 1, 3, Q("93 mm")),
    Sketcher.Constraint("DistanceY", 2, 3, 0, 3, Q("56 mm")),
    Sketcher.Constraint("DistanceX", -1, 1, 0, 3, Q("9.5 mm")),
    Sketcher.Constraint("DistanceY", -1, 1, 0, 3, Q("67.036 mm")),
])
sketch2.setExpression("Constraints[7]", "Params.sketch2_diameter")
pocket1 = body.newObject("PartDesign::Pocket", "Pocket")
pocket1.Profile = sketch2
pocket1.setExpression("Length", "Params.pocket1_length")
pocket1.Reversed = True

doc.recompute()
